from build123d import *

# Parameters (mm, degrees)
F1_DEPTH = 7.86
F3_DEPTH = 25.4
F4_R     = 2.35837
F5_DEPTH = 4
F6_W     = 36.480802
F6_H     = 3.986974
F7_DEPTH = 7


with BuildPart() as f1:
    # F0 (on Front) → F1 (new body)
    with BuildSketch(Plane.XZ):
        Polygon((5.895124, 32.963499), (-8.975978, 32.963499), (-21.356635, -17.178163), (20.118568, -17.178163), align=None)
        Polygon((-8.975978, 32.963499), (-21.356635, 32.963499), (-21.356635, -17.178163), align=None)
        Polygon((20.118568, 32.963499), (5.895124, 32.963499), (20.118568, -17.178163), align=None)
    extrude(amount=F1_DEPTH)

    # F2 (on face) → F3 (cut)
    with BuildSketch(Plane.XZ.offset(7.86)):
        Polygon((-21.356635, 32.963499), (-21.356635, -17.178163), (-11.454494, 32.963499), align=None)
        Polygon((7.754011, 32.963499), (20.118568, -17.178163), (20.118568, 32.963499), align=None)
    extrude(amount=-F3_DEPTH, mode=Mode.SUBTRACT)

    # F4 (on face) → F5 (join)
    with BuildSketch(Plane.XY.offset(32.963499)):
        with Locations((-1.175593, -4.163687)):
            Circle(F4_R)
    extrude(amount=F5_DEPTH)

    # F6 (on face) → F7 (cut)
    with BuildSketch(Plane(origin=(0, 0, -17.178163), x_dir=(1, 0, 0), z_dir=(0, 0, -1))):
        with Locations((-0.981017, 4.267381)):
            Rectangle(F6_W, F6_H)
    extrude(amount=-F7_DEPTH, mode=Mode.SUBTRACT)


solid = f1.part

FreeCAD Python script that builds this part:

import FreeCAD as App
import Part
import Sketcher

V = App.Vector
Q = App.Units.Quantity


def add_polygon(sketch, points):
    """Adds a closed chain of lines whose ends are joined by coincident constraints."""
    first, n = sketch.GeometryCount, len(points)
    for a, b in zip(points, points[1:] + points[:1]):
        sketch.addGeometry(Part.LineSegment(App.Vector(*a, 0), App.Vector(*b, 0)), False)
    for i in range(n):
        sketch.addConstraint(Sketcher.Constraint("Coincident", first + i, 2, first + (i + 1) % n, 1))

doc = App.newDocument("Part")
body = doc.addObject("PartDesign::Body", "Body")

sketch1 = body.newObject("Sketcher::SketchObject", "Sketch")
sketch1.AttachmentSupport = (doc.getObject("XZ_Plane"), [""])
sketch1.MapMode = "FlatFace"
add_polygon(sketch1, [(-21, 33), (-21, -17), (20, -17), (20, 33)])
sketch1.addConstraint([
    Sketcher.Constraint("Vertical", 0),
    Sketcher.Constraint("Horizontal", 1),
    Sketcher.Constraint("Vertical", 2),
    Sketcher.Constraint("Horizontal", 3),
    Sketcher.Constraint("DistanceY", 0, 2, 0, 1, Q("50.141662 mm")),
    Sketcher.Constraint("DistanceY", -1, 1, 2, 2, Q("32.963499 mm")),
    Sketcher.Constraint("DistanceX", 1, 1, 1, 2, Q("41.475203 mm")),
    Sketcher.Constraint("DistanceX", -1, 1, 1, 2, Q("20.118568 mm")),
])
pad1 = body.newObject("PartDesign::Pad", "Pad")
pad1.Profile = sketch1
pad1.Length = 7.86

sketch2 = body.newObject("Sketcher::SketchObject", "Sketch001")
sketch2.AttachmentSupport = (doc.getObject("XZ_Plane"), [""])
sketch2.MapMode = "FlatFace"
sketch2.AttachmentOffset = App.Placement(V(0, 0, 7.86), App.Rotation())
add_polygon(sketch2, [(-21, 33), (-21, -17), (-11, 33)])
add_polygon(sketch2, [(8, 33), (20, -17), (20, 33)])
sketch2.addConstraint([
    Sketcher.Constraint("Vertical", 0),
    Sketcher.Constraint("Horizontal", 2),
    Sketcher.Constraint("Vertical", 4),
    Sketcher.Constraint("Horizontal", 5),
    Sketcher.Constraint("Horizontal", 0, 2, 3, 2),
    Sketcher.Constraint("Horizontal", 2, 2, 4, 2),
    Sketcher.Constraint("DistanceX", 2, 2, 2, 1, Q("9.902141 mm")),
    Sketcher.Constraint("DistanceY", 0, 2, 0, 1, Q("50.141662 mm")),
    Sketcher.Constraint("DistanceY", -1, 1, 1, 2, Q("32.963499 mm")),
    Sketcher.Constraint("Distance", 3, Q("51.643669 mm")),
    Sketcher.Constraint("DistanceX", -1, 1, 3, 2, Q("20.118568 mm")),
    Sketcher.Constraint("DistanceX", 1, 2, 3, 2, Q("31.573062 mm")),
])
pocket1 = body.newObject("PartDesign::Pocket", "Pocket")
pocket1.Profile = sketch2
pocket1.Length = 25.4

sketch3 = body.newObject("Sketcher::SketchObject", "Sketch002")
sketch3.AttachmentSupport = (doc.getObject("XY_Plane"), [""])
sketch3.MapMode = "FlatFace"
sketch3.AttachmentOffset = App.Placement(V(0, 0, 32.963499), App.Rotation())
sketch3.addGeometry(Part.Circle(V(-1.2, -4.2, 0), V(0, 0, 1), 2.4), False)
sketch3.addConstraint([
    Sketcher.Constraint("Diameter", 0, Q("4.71674 mm")),
    Sketcher.Constraint("DistanceX", 0, 3, -1, 1, Q("1.175593 mm")),
    Sketcher.Constraint("DistanceY", 0, 3, -1, 1, Q("4.163687 mm")),
])
pad2 = body.newObject("PartDesign::Pad", "Pad001")
pad2.Profile = sketch3
pad2.Length = 4

sketch4 = body.newObject("Sketcher::SketchObject", "Sketch003")
sketch4.AttachmentSupport = (doc.getObject("XY_Plane"), [""])
sketch4.MapMode = "FlatFace"
sketch4.AttachmentOffset = App.Placement(V(0, 0, -17.178163), App.Rotation())
add_polygon(sketch4, [(-19.2, -6.3), (-19.2, -2.3), (17.3, -2.3), (17.3, -6.3)])
sketch4.addConstraint([
    Sketcher.Constraint("Vertical", 0),
    Sketcher.Constraint("Horizontal", 1),
    Sketcher.Constraint("Vertical", 2),
    Sketcher.Constraint("Horizontal", 3),
    Sketcher.Constraint("DistanceX", 1, 1, 1, 2, Q("36.480802 mm")),
    Sketcher.Constraint("DistanceY", 0, 1, 0, 2, Q("3.986974 mm")),
    Sketcher.Constraint("DistanceX", 0, 2, -1, 1, Q("19.221418 mm")),
    Sketcher.Constraint("DistanceY", 2, 2, -1, 1, Q("6.260868 mm")),
])
pocket2 = body.newObject("PartDesign::Pocket", "Pocket001")
pocket2.Profile = sketch4
pocket2.Length = 7
pocket2.Reversed = True

doc.recompute()
